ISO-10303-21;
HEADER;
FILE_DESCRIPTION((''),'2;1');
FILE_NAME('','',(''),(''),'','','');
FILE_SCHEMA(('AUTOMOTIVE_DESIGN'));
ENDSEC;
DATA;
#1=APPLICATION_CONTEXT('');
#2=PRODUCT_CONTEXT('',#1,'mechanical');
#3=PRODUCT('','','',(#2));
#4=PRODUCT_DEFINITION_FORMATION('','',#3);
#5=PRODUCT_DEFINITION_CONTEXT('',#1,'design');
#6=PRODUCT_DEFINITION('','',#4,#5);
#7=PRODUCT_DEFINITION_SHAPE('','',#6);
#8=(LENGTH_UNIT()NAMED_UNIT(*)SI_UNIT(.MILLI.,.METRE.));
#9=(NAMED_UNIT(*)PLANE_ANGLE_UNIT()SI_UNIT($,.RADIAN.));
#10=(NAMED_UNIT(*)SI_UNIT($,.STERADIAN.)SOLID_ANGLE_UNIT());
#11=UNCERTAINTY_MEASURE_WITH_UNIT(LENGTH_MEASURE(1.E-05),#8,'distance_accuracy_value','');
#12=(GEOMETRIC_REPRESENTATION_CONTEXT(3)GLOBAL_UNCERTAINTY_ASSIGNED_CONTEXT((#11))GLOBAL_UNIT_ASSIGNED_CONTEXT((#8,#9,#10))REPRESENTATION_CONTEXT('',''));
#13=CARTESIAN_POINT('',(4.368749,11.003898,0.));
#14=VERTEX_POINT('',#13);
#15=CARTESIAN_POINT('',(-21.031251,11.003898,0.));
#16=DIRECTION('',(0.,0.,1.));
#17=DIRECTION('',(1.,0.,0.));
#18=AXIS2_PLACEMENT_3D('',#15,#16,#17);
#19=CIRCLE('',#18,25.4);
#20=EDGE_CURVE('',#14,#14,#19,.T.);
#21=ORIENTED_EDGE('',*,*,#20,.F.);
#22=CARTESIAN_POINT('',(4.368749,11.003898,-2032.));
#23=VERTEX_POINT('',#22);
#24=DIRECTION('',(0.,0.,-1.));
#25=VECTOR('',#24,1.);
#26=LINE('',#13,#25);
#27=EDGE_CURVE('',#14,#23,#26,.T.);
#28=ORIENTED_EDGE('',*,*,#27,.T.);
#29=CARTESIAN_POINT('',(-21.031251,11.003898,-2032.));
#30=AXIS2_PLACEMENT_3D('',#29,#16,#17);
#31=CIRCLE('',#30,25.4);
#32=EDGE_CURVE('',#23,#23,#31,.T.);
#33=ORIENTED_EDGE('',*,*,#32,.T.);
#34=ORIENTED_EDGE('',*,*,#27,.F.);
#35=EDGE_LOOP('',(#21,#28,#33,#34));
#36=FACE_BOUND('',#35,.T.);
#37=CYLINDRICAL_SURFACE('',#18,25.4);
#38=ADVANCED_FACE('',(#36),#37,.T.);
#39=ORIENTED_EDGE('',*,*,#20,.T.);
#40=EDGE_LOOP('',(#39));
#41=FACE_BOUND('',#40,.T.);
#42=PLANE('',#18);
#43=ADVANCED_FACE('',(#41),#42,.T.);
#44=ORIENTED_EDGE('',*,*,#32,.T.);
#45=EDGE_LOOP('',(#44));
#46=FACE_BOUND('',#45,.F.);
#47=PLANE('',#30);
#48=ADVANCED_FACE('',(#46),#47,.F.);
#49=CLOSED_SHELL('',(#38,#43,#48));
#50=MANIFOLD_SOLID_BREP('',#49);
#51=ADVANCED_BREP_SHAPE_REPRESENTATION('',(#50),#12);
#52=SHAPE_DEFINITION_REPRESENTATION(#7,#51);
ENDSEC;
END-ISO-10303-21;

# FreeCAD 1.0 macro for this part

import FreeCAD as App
import Part
import Sketcher
Q = App.Units.Quantity

doc = App.newDocument("Part")
body = doc.addObject("PartDesign::Body", "Body")

sketch1 = body.newObject("Sketcher::SketchObject", "Sketch")
sketch1.AttachmentSupport = (doc.getObject("XY_Plane"), [""])
sketch1.MapMode = "FlatFace"
sketch1.addGeometry(Part.Circle(App.Vector(-21.031251, 11.003898, 0), App.Vector(0, 0, 1), 25.4), False)
sketch1.addConstraint(Sketcher.Constraint("Diameter", 0, Q("2 in")))
sketch1.addConstraint(Sketcher.Constraint("DistanceX", 0, 3, -1, 1, Q("21.031251 mm")))
sketch1.addConstraint(Sketcher.Constraint("DistanceY", -1, 1, 0, 3, Q("11.003898 mm")))
pad1 = body.newObject("PartDesign::Pad", "Pad")
pad1.Profile = sketch1
pad1.Length = Q("80 in")
pad1.Reversed = True

doc.recompute()
